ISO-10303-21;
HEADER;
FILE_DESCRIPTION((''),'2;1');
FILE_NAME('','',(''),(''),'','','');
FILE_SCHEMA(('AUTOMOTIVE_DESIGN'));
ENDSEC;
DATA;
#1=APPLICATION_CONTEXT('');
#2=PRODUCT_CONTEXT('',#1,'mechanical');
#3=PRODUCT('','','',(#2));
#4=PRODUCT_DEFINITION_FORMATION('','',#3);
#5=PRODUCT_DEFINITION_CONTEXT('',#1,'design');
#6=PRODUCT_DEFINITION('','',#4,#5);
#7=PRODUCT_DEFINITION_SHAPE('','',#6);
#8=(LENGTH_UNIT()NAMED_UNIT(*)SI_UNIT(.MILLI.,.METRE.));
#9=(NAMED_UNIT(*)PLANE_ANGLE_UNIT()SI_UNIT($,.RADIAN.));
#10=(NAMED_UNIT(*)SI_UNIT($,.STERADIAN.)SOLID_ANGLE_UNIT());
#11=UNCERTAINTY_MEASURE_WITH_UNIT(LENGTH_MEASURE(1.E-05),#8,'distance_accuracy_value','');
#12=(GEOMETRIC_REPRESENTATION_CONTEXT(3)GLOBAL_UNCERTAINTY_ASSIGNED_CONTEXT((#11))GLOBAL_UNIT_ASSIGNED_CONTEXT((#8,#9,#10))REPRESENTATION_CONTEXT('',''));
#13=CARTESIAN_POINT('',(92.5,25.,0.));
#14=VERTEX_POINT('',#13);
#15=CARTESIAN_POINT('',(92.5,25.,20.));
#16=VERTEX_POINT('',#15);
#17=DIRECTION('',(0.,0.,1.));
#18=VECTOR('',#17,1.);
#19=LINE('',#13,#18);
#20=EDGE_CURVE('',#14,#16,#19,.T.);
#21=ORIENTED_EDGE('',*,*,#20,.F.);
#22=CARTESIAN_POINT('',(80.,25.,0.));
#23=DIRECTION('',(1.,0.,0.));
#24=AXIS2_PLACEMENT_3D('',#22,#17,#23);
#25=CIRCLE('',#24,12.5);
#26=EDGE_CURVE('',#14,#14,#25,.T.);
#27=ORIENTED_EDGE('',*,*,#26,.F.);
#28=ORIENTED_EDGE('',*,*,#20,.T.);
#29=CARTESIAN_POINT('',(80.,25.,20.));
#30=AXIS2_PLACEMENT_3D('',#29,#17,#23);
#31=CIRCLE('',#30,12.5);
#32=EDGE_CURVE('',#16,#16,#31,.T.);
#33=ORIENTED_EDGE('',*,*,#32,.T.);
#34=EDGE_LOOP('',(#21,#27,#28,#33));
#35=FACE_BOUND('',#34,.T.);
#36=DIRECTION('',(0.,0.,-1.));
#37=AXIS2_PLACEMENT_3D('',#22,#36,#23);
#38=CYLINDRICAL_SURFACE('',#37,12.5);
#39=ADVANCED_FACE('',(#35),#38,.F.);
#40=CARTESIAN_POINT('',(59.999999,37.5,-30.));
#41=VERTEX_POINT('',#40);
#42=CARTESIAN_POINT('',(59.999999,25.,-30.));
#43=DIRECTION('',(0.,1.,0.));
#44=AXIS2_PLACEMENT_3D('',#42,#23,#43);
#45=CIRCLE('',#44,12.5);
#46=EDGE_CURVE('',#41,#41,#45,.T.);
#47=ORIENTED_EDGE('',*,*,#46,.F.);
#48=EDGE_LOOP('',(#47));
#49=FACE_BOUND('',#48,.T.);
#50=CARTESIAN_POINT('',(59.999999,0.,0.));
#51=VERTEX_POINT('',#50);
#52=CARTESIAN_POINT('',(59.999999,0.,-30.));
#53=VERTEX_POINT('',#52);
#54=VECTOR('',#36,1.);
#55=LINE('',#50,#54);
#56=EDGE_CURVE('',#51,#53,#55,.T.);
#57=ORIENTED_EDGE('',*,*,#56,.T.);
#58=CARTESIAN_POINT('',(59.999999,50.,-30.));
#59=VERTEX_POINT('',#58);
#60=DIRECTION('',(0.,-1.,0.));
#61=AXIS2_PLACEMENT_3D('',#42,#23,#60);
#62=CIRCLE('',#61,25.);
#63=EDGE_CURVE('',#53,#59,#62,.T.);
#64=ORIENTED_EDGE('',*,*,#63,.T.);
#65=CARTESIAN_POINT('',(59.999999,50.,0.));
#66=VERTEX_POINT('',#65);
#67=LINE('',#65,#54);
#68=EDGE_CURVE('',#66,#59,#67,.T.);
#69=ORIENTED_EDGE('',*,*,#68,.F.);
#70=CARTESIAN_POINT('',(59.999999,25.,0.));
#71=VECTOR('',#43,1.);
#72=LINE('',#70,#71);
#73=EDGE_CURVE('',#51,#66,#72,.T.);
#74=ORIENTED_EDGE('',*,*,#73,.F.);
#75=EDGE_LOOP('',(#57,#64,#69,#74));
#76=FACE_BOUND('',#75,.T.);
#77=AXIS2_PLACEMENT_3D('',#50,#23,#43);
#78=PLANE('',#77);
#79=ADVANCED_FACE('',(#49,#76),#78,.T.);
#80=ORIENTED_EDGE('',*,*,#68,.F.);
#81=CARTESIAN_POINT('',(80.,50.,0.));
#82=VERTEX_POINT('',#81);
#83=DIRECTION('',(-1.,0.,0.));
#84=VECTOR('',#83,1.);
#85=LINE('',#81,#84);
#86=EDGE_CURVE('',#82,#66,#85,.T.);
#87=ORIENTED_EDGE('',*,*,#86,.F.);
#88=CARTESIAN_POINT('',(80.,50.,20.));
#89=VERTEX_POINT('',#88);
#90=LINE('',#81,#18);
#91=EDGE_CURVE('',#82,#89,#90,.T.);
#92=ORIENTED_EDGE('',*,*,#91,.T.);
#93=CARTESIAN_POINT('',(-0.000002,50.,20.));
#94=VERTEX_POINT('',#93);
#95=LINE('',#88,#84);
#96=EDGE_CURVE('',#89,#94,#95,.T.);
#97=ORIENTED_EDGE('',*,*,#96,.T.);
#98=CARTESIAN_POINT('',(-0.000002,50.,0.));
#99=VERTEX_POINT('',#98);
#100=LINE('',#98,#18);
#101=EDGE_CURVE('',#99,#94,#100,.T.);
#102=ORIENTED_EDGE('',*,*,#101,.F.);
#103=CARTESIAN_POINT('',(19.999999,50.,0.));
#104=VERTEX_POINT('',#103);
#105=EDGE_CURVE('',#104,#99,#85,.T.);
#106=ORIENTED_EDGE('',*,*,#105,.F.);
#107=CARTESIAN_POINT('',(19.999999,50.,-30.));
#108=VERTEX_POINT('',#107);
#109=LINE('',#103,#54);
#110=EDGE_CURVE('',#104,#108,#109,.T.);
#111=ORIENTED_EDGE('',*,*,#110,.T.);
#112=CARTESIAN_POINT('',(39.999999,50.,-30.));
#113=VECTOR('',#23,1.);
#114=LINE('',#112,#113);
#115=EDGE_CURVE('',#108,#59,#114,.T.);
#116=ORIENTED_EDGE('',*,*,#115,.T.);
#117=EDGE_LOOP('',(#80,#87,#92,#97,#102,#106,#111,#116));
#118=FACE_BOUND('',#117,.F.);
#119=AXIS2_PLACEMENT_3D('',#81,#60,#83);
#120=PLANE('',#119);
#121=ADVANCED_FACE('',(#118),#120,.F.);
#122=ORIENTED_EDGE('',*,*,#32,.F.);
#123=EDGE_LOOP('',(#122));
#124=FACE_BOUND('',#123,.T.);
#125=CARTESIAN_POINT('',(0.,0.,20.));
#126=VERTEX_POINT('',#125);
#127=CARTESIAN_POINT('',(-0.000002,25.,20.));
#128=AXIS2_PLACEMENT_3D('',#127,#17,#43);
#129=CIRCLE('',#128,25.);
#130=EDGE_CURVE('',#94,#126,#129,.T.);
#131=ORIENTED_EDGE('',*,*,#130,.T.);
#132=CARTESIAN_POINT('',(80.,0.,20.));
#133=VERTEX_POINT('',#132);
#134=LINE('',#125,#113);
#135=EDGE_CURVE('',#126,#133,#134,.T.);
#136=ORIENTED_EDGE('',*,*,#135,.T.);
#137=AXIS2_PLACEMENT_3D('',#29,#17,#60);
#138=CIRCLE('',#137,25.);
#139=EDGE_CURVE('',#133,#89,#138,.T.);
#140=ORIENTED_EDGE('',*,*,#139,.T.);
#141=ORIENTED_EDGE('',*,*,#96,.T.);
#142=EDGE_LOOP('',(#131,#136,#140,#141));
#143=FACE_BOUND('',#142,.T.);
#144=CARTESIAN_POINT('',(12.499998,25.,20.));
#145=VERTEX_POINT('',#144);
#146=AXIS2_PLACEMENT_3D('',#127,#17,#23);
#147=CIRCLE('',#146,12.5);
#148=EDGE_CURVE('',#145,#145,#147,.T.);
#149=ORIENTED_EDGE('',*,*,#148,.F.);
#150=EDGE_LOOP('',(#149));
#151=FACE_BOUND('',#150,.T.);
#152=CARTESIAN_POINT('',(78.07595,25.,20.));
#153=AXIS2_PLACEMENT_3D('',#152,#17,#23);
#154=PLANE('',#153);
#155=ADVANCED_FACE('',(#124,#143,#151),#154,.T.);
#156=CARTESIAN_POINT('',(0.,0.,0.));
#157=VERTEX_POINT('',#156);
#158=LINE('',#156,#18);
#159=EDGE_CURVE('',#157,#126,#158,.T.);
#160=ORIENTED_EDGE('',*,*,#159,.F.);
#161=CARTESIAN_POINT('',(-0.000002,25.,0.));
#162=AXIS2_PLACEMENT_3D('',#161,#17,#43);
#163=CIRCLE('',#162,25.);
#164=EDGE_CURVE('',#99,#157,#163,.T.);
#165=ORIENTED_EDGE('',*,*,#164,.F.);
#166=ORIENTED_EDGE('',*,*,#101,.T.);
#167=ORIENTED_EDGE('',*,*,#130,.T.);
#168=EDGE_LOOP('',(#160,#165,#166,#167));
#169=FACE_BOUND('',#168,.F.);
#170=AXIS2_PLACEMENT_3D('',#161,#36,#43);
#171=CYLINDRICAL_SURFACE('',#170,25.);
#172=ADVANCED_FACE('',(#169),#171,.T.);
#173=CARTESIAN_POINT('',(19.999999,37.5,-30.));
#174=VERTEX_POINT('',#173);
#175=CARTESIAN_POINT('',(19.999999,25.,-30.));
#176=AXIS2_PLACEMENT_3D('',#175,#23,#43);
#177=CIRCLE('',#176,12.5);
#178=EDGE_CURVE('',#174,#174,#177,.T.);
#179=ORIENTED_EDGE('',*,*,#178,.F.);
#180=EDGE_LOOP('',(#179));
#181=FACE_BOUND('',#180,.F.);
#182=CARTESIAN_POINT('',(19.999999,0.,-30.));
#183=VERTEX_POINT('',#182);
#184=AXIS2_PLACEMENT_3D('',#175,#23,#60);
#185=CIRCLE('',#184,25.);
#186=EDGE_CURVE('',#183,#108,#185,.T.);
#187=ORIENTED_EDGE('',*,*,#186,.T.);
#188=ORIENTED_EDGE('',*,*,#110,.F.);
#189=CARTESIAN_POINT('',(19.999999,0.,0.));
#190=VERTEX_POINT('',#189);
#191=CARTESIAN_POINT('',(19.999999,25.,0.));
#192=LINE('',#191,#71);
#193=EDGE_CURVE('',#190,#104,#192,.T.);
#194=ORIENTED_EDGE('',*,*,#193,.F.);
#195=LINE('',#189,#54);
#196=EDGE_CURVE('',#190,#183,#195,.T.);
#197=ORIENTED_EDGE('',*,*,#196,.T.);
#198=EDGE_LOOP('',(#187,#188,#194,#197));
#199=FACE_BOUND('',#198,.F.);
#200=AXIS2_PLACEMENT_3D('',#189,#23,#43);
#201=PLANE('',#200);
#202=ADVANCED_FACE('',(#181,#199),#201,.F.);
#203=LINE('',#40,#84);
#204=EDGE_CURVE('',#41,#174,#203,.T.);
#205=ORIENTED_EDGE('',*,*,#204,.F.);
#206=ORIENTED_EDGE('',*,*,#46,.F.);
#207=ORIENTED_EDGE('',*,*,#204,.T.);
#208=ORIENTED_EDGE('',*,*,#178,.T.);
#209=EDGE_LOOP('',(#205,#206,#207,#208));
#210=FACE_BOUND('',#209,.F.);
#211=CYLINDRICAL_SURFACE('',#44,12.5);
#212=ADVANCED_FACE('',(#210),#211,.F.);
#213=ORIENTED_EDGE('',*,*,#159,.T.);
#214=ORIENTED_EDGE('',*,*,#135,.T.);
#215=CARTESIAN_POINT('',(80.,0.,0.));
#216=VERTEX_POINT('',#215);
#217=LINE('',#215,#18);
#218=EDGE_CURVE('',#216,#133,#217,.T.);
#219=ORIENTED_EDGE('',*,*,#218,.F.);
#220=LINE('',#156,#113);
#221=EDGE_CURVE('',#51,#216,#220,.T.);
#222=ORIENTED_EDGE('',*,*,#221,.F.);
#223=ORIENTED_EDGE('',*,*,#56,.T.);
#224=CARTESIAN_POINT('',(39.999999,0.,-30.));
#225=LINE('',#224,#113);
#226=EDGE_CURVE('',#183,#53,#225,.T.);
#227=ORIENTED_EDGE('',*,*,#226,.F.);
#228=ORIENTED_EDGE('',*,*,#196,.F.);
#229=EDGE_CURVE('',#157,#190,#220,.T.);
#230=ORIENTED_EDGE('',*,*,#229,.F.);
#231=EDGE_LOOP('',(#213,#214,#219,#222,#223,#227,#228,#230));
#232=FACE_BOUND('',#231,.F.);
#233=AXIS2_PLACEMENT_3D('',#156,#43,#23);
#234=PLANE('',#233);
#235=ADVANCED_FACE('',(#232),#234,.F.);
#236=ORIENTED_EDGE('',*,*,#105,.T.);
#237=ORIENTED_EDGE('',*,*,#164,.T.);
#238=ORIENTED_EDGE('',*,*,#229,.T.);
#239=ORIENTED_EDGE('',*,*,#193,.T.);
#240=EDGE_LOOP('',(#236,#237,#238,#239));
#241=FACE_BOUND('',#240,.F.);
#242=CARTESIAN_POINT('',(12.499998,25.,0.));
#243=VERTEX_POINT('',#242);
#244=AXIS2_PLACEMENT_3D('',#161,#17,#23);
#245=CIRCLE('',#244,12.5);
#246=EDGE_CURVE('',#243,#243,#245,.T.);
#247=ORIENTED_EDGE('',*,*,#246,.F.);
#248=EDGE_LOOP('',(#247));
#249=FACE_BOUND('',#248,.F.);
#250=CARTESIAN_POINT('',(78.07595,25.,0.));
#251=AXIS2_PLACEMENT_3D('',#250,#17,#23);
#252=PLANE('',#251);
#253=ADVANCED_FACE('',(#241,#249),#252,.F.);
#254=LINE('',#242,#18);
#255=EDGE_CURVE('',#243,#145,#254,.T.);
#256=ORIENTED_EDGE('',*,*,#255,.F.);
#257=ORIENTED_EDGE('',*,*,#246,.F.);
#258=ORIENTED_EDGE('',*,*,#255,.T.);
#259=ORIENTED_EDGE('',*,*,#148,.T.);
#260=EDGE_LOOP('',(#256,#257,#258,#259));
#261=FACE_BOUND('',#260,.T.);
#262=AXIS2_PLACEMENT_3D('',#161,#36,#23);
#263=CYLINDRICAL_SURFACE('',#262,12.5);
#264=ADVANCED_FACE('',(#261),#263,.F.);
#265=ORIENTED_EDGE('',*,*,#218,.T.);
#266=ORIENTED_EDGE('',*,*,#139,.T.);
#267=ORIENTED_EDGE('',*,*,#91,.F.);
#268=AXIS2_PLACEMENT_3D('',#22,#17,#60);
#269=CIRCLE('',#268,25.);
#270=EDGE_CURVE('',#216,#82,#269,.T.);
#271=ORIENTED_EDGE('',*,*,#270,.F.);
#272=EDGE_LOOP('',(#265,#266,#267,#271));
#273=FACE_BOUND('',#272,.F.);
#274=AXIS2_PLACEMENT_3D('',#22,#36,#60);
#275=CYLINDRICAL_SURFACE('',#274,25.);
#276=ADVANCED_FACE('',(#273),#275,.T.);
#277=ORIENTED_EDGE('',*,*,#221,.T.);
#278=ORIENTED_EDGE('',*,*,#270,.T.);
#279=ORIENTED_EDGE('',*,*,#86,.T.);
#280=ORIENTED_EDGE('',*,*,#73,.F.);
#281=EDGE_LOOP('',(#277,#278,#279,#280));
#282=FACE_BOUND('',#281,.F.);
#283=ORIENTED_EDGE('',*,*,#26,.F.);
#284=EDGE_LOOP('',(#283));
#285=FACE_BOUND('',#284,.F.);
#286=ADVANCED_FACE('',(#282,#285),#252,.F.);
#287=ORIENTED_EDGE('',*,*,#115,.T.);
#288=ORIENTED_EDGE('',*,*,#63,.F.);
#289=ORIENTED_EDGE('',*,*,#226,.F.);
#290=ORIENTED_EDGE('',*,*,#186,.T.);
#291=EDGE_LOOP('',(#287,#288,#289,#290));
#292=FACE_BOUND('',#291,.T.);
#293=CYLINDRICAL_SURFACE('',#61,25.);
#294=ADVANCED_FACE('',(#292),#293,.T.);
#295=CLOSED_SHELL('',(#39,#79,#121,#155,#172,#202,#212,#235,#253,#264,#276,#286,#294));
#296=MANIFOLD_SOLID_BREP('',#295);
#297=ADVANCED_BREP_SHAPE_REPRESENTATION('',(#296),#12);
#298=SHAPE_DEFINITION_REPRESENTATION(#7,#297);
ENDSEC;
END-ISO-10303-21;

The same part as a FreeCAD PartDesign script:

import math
import FreeCAD as App
import Part
import Sketcher

V = App.Vector
Q = App.Units.Quantity


def add_polygon(sketch, points):
    """Adds a closed chain of lines whose ends are joined by coincident constraints."""
    first, n = sketch.GeometryCount, len(points)
    for a, b in zip(points, points[1:] + points[:1]):
        sketch.addGeometry(Part.LineSegment(App.Vector(*a, 0), App.Vector(*b, 0)), False)
    for i in range(n):
        sketch.addConstraint(Sketcher.Constraint("Coincident", first + i, 2, first + (i + 1) % n, 1))

doc = App.newDocument("Part")
body = doc.addObject("PartDesign::Body", "Body")

sketch1 = body.newObject("Sketcher::SketchObject", "Sketch")
sketch1.AttachmentSupport = (doc.getObject("XY_Plane"), [""])
sketch1.MapMode = "FlatFace"
sketch1.addGeometry([
    Part.LineSegment(V(80, 50, 0), V(0, 50, 0)),
    Part.ArcOfCircle(Part.Circle(V(0, 25, 0), V(0, 0, 1), 25), math.radians(90), math.radians(270)),
    Part.LineSegment(V(0, 0, 0), V(80, 0, 0)),
    Part.ArcOfCircle(Part.Circle(V(80, 25, 0), V(0, 0, 1), 25), math.radians(-90), math.radians(90)),
    Part.Circle(V(80, 25, 0), V(0, 0, 1), 12),
    Part.Circle(V(0, 25, 0), V(0, 0, 1), 12),
], False)
sketch1.addConstraint([
    Sketcher.Constraint("Tangent", 0, 2, 1, 1),
    Sketcher.Constraint("Tangent", 1, 2, 2, 1),
    Sketcher.Constraint("Tangent", 2, 2, 3, 1),
    Sketcher.Constraint("Tangent", 3, 2, 0, 1),
    Sketcher.Constraint("Horizontal", 0),
    Sketcher.Constraint("Horizontal", 2),
    Sketcher.Constraint("Coincident", 1, 2, -1, 1),
    Sketcher.Constraint("Coincident", 4, 3, 3, 3),
    Sketcher.Constraint("Coincident", 5, 3, 1, 3),
    Sketcher.Constraint("Equal", 4, 5),
    Sketcher.Constraint("Diameter", 4, Q("25 mm")),
    Sketcher.Constraint("Radius", 1, Q("25 mm")),
    Sketcher.Constraint("DistanceX", 0, 2, 0, 1, Q("80.000002 mm")),
])
pad1 = body.newObject("PartDesign::Pad", "Pad")
pad1.Profile = sketch1
pad1.Length = 20

sketch2 = body.newObject("Sketcher::SketchObject", "Sketch001")
sketch2.AttachmentSupport = (doc.getObject("XY_Plane"), [""])
sketch2.MapMode = "FlatFace"
add_polygon(sketch2, [(20, 50), (20, 0), (60, 0), (60, 50)])
sketch2.addConstraint([
    Sketcher.Constraint("Vertical", 0),
    Sketcher.Constraint("Horizontal", 1),
    Sketcher.Constraint("Vertical", 2),
    Sketcher.Constraint("Horizontal", 3),
    Sketcher.Constraint("PointOnObject", 0, 2, -1),
    Sketcher.Constraint("DistanceX", 1, 1, 1, 2, Q("40 mm")),
    Sketcher.Constraint("DistanceY", 0, 2, 0, 1, Q("50 mm")),
    Sketcher.Constraint("DistanceX", -1, 1, 0, 2, Q("19.999999 mm")),
])
pad2 = body.newObject("PartDesign::Pad", "Pad001")
pad2.Profile = sketch2
pad2.Length = 30
pad2.Reversed = True

sketch3 = body.newObject("Sketcher::SketchObject", "Sketch002")
sketch3.AttachmentSupport = (doc.getObject("YZ_Plane"), [""])
sketch3.MapMode = "FlatFace"
sketch3.AttachmentOffset = App.Placement(V(0, 0, 59.999999), App.Rotation())
sketch3.addGeometry([
    Part.ArcOfCircle(Part.Circle(V(25, -30, 0), V(0, 0, 1), 12), math.radians(0), math.radians(180)),
    Part.LineSegment(V(12, -30, 0), V(0, -30, 0)),
    Part.ArcOfCircle(Part.Circle(V(25, -30, 0), V(0, 0, 1), 25), math.radians(180), math.radians(360)),
    Part.LineSegment(V(50, -30, 0), V(38, -30, 0)),
], False)
sketch3.addConstraint([
    Sketcher.Constraint("Coincident", 0, 2, 1, 1),
    Sketcher.Constraint("Coincident", 1, 2, 2, 1),
    Sketcher.Constraint("Coincident", 2, 2, 3, 1),
    Sketcher.Constraint("Coincident", 3, 2, 0, 1),
    Sketcher.Constraint("Horizontal", 1),
    Sketcher.Constraint("Horizontal", 3),
    Sketcher.Constraint("Coincident", 2, 3, 0, 3),
    Sketcher.Constraint("PointOnObject", 1, 2, -2),
    Sketcher.Constraint("Horizontal", 2, 3, 0, 2),
    Sketcher.Constraint("Horizontal", 1, 2, 2, 2),
    Sketcher.Constraint("Radius", 2, Q("25 mm")),
    Sketcher.Constraint("Radius", 0, Q("12.5 mm")),
    Sketcher.Constraint("DistanceY", 0, 3, -1, 1, Q("30 mm")),
])
pad3 = body.newObject("PartDesign::Pad", "Pad002")
pad3.Profile = sketch3
pad3.Length = 40
pad3.Reversed = True

sketch4 = body.newObject("Sketcher::SketchObject", "Sketch003")
sketch4.AttachmentSupport = (doc.getObject("YZ_Plane"), [""])
sketch4.MapMode = "FlatFace"
sketch4.AttachmentOffset = App.Placement(V(0, 0, 59.999999), App.Rotation())
sketch4.addGeometry(Part.Circle(V(25, -30, 0), V(0, 0, 1), 12), False)
sketch4.addConstraint([
    Sketcher.Constraint("Diameter", 0, Q("25 mm")),
    Sketcher.Constraint("DistanceX", -1, 1, 0, 3, Q("25 mm")),
    Sketcher.Constraint("DistanceY", 0, 3, -1, 1, Q("30 mm")),
])
pocket1 = body.newObject("PartDesign::Pocket", "Pocket")
pocket1.Profile = sketch4
pocket1.Type = "ThroughAll"

doc.recompute()
